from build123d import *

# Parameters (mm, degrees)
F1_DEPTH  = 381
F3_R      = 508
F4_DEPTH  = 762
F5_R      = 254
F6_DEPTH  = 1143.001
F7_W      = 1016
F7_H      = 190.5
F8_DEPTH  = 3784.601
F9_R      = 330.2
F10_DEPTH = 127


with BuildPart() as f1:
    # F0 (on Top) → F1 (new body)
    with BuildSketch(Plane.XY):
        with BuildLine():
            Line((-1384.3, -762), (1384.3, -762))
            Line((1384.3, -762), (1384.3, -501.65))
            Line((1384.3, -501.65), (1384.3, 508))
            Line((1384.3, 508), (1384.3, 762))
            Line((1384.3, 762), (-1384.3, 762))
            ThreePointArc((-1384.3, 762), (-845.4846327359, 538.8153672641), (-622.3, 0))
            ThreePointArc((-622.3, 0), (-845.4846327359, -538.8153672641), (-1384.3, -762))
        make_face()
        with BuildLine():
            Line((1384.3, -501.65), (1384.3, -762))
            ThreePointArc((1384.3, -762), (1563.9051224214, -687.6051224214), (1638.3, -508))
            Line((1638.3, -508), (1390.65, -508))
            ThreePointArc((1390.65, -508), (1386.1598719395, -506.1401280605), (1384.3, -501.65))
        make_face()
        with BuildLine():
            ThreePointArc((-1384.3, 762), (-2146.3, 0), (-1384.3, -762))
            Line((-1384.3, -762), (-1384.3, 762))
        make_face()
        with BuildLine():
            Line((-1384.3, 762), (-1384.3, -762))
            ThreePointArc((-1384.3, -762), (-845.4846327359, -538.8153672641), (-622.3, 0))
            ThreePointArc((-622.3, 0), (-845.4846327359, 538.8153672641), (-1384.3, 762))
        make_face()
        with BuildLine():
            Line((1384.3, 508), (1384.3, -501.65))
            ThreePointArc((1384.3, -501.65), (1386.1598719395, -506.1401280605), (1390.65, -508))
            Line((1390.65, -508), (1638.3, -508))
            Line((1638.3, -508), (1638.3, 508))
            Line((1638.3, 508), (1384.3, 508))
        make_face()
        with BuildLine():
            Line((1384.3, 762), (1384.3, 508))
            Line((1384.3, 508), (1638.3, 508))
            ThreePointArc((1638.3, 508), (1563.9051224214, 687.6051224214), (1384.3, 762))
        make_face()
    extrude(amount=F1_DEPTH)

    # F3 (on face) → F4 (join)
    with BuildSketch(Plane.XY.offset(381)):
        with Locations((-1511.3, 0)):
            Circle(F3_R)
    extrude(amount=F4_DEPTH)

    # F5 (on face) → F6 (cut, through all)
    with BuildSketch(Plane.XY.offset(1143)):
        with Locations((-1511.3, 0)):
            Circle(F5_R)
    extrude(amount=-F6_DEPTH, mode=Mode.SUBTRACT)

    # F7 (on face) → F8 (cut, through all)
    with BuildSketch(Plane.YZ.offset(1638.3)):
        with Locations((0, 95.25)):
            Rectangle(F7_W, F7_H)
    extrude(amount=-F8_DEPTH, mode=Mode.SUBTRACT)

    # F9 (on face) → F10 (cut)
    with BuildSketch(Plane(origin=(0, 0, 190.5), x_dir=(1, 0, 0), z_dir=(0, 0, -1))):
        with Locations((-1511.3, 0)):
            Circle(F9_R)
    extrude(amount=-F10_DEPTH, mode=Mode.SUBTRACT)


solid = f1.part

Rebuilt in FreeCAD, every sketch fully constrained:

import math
import FreeCAD as App
import Part
import Sketcher
from FreeCAD import Vector
Q = App.Units.Quantity


def add_polygon(sketch, points):
    """Adds a closed chain of lines whose ends are joined by coincident constraints."""
    first, n = sketch.GeometryCount, len(points)
    for a, b in zip(points, points[1:] + points[:1]):
        sketch.addGeometry(Part.LineSegment(App.Vector(*a, 0), App.Vector(*b, 0)), False)
    for i in range(n):
        sketch.addConstraint(Sketcher.Constraint("Coincident", first + i, 2, first + (i + 1) % n, 1))

doc = App.newDocument("Part")
params = doc.addObject("Spreadsheet::Sheet", "Params")
for row, (alias, value) in enumerate([
    ("sketch1_radius", "10 in"),
    ("sketch1_radius2", "30 in"),
    ("sketch1_width", "109 in"),
    ("pad1_length", "15 in"),
    ("sketch2_diameter", "40 in"),
    ("pad2_length", "30 in"),
    ("sketch3_diameter", "20 in"),
    ("sketch4_width", "40 in"),
    ("sketch4_height", "7.5 in"),
    ("sketch5_diameter", "26 in"),
    ("pocket3_length", "5 in"),
], start=1):
    params.set(f"A{row}", alias)
    params.set(f"B{row}", "=" + value)
    params.setAlias(f"B{row}", alias)

body = doc.addObject("PartDesign::Body", "Body")

sketch1 = doc.addObject("Sketcher::SketchObject", "Sketch")
body.addObject(sketch1)
sketch1.AttachmentSupport = (doc.XY_Plane, [""])
sketch1.MapMode = "FlatFace"
sketch1.addGeometry([
    Part.LineSegment(Vector(-1384, -762, 0), Vector(1384, -762, 0)),
    Part.ArcOfCircle(Part.Circle(Vector(1384, -508, 0), Vector(0, 0, 1), 254), math.radians(-90), math.radians(0)),
    Part.LineSegment(Vector(1638, -508, 0), Vector(1638, 508, 0)),
    Part.ArcOfCircle(Part.Circle(Vector(1384, 508, 0), Vector(0, 0, 1), 254), math.radians(0), math.radians(90)),
    Part.LineSegment(Vector(1384, 762, 0), Vector(-1384, 762, 0)),
    Part.ArcOfCircle(Part.Circle(Vector(-1384, 0, 0), Vector(0, 0, 1), 762), math.radians(90), math.radians(270)),
], False)
sketch1.addConstraint([
    Sketcher.Constraint("Tangent", 0, 2, 1, 1),
    Sketcher.Constraint("Tangent", 1, 2, 2, 1),
    Sketcher.Constraint("Tangent", 2, 2, 3, 1),
    Sketcher.Constraint("Tangent", 3, 2, 4, 1),
    Sketcher.Constraint("Coincident", 4, 2, 5, 1),
    Sketcher.Constraint("Coincident", 5, 2, 0, 1),
    Sketcher.Constraint("Horizontal", 0),
    Sketcher.Constraint("Vertical", 2),
    Sketcher.Constraint("Horizontal", 4),
    Sketcher.Constraint("Equal", 1, 3),
    Sketcher.Constraint("Symmetric", 0, 2, 4, 2, -1, 1),
    Sketcher.Constraint("Vertical", 5, 3, 4, 2),
    Sketcher.Constraint("Equal", 0, 4),
    Sketcher.Constraint("Radius", 1, Q("10 in")),
    Sketcher.Constraint("Radius", 5, Q("30 in")),
    Sketcher.Constraint("DistanceX", 0, 1, 0, 2, Q("109 in")),
])
sketch1.setExpression("Constraints[13]", "Params.sketch1_radius")
sketch1.setExpression("Constraints[14]", "Params.sketch1_radius2")
sketch1.setExpression("Constraints[15]", "Params.sketch1_width")
pad1 = doc.addObject("PartDesign::Pad", "Pad")
body.addObject(pad1)
pad1.Profile = sketch1
pad1.setExpression("Length", "Params.pad1_length")

sketch2 = doc.addObject("Sketcher::SketchObject", "Sketch001")
body.addObject(sketch2)
sketch2.AttachmentSupport = (doc.XY_Plane, [""])
sketch2.MapMode = "FlatFace"
sketch2.AttachmentOffset = App.Placement(Vector(0, 0, 15 * 25.4), App.Rotation())
sketch2.addGeometry(Part.Circle(Vector(-1511, 0, 0), Vector(0, 0, 1), 508), False)
sketch2.addConstraint([
    Sketcher.Constraint("PointOnObject", 0, 3, -1),
    Sketcher.Constraint("Diameter", 0, Q("40 in")),
    Sketcher.Constraint("DistanceX", 0, 3, -1, 1, Q("59.5 in")),
])
sketch2.setExpression("Constraints[1]", "Params.sketch2_diameter")
pad2 = doc.addObject("PartDesign::Pad", "Pad001")
body.addObject(pad2)
pad2.Profile = sketch2
pad2.setExpression("Length", "Params.pad2_length")

sketch3 = doc.addObject("Sketcher::SketchObject", "Sketch002")
body.addObject(sketch3)
sketch3.AttachmentSupport = (doc.XY_Plane, [""])
sketch3.MapMode = "FlatFace"
sketch3.AttachmentOffset = App.Placement(Vector(0, 0, 45 * 25.4), App.Rotation())
sketch3.addGeometry(Part.Circle(Vector(-1511, 0, 0), Vector(0, 0, 1), 254), False)
sketch3.addConstraint([
    Sketcher.Constraint("PointOnObject", 0, 3, -1),
    Sketcher.Constraint("Diameter", 0, Q("20 in")),
    Sketcher.Constraint("DistanceX", 0, 3, -1, 1, Q("59.5 in")),
])
sketch3.setExpression("Constraints[1]", "Params.sketch3_diameter")
pocket1 = doc.addObject("PartDesign::Pocket", "Pocket")
body.addObject(pocket1)
pocket1.Profile = sketch3
pocket1.Type = "ThroughAll"

sketch4 = doc.addObject("Sketcher::SketchObject", "Sketch003")
body.addObject(sketch4)
sketch4.AttachmentSupport = (doc.YZ_Plane, [""])
sketch4.MapMode = "FlatFace"
sketch4.AttachmentOffset = App.Placement(Vector(0, 0, 64.5 * 25.4), App.Rotation())
add_polygon(sketch4, [(-508, 190), (-508, 0), (508, 0), (508, 190)])
sketch4.addConstraint([
    Sketcher.Constraint("Vertical", 0),
    Sketcher.Constraint("Horizontal", 1),
    Sketcher.Constraint("Vertical", 2),
    Sketcher.Constraint("Horizontal", 3),
    Sketcher.Constraint("Symmetric", 0, 2, 1, 2, -1, 1),
    Sketcher.Constraint("DistanceX", 1, 1, 1, 2, Q("40 in")),
    Sketcher.Constraint("DistanceY", 0, 2, 0, 1, Q("7.5 in")),
])
sketch4.setExpression("Constraints[9]", "Params.sketch4_width")
sketch4.setExpression("Constraints[10]", "Params.sketch4_height")
pocket2 = doc.addObject("PartDesign::Pocket", "Pocket001")
body.addObject(pocket2)
pocket2.Profile = sketch4
pocket2.Type = "ThroughAll"

sketch5 = doc.addObject("Sketcher::SketchObject", "Sketch004")
body.addObject(sketch5)
sketch5.AttachmentSupport = (doc.XY_Plane, [""])
sketch5.MapMode = "FlatFace"
sketch5.AttachmentOffset = App.Placement(Vector(0, 0, 7.5 * 25.4), App.Rotation())
sketch5.addGeometry(Part.Circle(Vector(-1511, 0, 0), Vector(0, 0, 1), 330), False)
sketch5.addConstraint([
    Sketcher.Constraint("PointOnObject", 0, 3, -1),
    Sketcher.Constraint("Diameter", 0, Q("26 in")),
    Sketcher.Constraint("DistanceX", 0, 3, -1, 1, Q("59.5 in")),
])
sketch5.setExpression("Constraints[1]", "Params.sketch5_diameter")
pocket3 = doc.addObject("PartDesign::Pocket", "Pocket002")
body.addObject(pocket3)
pocket3.Profile = sketch5
pocket3.setExpression("Length", "Params.pocket3_length")
pocket3.Reversed = True

doc.recompute()
